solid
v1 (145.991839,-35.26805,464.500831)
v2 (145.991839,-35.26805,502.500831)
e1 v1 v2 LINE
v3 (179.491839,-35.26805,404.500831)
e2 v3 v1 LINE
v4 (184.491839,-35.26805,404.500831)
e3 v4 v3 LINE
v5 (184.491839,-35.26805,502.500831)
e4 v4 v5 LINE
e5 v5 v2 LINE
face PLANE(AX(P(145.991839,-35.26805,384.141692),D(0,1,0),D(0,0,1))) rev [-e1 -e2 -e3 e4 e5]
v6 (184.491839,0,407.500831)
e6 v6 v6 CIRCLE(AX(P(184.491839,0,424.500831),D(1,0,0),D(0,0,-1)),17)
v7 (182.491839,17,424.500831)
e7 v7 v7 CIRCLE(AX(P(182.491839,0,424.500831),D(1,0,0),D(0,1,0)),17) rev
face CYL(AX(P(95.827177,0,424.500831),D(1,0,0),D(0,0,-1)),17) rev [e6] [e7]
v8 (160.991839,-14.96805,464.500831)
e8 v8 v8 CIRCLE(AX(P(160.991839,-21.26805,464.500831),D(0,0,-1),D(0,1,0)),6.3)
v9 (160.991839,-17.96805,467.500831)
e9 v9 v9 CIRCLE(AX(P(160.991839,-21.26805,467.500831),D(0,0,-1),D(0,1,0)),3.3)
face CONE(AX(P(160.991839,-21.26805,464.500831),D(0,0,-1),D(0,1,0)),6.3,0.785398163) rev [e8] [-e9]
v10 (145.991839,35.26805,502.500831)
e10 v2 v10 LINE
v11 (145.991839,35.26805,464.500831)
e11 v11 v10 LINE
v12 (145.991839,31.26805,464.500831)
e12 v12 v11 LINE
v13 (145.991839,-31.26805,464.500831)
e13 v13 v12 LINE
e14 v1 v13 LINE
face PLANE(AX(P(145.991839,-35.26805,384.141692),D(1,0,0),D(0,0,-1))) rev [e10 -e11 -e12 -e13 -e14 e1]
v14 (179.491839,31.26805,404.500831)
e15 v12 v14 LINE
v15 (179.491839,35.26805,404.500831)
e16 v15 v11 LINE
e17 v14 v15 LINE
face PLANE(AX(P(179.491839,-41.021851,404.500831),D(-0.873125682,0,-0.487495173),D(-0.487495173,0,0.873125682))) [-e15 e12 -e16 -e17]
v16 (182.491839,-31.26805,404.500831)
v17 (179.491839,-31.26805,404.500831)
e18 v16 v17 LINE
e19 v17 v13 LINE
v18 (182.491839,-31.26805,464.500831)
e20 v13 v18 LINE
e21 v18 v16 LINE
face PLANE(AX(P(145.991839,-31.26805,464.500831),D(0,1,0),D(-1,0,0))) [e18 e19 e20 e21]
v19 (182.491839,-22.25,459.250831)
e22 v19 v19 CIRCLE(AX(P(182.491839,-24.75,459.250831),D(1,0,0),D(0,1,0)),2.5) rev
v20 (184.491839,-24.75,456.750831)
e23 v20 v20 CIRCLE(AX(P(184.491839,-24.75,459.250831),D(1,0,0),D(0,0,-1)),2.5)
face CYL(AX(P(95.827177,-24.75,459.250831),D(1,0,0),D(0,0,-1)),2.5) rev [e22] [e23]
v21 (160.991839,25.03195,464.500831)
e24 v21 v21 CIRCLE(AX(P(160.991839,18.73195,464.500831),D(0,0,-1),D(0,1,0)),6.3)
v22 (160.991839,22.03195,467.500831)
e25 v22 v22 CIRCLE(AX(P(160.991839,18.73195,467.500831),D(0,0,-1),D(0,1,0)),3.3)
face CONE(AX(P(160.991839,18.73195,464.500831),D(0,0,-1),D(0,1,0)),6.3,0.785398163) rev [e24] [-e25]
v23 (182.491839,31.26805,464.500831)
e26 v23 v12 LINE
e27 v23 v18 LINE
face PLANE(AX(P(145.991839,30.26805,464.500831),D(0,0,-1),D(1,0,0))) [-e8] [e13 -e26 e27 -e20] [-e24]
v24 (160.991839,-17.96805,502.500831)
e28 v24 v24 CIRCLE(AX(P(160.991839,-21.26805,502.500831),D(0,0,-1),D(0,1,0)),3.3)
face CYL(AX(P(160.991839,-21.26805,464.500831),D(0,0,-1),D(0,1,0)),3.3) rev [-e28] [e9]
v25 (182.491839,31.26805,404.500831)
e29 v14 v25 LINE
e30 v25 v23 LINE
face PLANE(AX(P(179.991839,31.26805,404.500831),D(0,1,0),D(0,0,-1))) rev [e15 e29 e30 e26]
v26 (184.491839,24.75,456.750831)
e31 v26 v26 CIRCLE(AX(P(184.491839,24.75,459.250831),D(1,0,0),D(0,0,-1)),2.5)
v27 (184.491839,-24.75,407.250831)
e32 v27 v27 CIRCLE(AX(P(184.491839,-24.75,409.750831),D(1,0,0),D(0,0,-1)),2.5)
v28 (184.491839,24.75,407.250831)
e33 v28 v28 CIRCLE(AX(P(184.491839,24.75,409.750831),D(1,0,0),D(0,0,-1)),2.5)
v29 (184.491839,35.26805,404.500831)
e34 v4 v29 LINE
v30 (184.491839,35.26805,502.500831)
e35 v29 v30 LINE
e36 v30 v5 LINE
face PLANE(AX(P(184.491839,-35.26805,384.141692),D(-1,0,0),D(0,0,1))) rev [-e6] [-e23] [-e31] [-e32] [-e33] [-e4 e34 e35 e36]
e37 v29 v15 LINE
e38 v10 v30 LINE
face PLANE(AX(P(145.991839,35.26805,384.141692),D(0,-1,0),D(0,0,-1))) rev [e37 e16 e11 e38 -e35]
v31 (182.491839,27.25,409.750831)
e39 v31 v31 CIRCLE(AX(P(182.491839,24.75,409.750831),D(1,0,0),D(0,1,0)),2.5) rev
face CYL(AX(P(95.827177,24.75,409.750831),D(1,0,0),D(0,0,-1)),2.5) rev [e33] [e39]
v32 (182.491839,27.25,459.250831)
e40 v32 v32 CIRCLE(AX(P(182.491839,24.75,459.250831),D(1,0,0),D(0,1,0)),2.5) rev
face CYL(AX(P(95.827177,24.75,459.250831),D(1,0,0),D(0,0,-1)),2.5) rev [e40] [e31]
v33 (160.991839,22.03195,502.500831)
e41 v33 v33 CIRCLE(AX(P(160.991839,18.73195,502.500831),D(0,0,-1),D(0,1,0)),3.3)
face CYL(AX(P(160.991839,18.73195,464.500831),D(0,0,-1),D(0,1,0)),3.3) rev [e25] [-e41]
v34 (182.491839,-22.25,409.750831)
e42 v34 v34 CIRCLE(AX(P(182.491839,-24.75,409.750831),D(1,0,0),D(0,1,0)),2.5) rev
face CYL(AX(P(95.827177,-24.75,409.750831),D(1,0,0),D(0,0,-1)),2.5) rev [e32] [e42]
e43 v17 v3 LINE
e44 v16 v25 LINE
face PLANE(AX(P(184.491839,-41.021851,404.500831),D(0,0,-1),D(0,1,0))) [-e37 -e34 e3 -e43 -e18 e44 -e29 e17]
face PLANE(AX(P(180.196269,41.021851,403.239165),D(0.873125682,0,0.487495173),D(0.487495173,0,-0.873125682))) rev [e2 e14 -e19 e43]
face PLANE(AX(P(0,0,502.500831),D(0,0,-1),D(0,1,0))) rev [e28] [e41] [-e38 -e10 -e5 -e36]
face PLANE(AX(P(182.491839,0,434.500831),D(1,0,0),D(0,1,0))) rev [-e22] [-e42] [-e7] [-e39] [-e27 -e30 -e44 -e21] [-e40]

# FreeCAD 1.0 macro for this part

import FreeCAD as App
import Part
import Sketcher
from FreeCAD import Vector
Q = App.Units.Quantity

doc = App.newDocument("Part")
body = doc.addObject("PartDesign::Body", "Body")

# Sketch on XY plane
sketch1 = body.newObject("Sketcher::SketchObject", "Sketch")
sketch1.AttachmentSupport = (doc.getObject("XY_Plane"), [""])
sketch1.MapMode = "FlatFace"
sketch1.AttachmentOffset = App.Placement(Vector(0, 0, 502.500831), App.Rotation())
sketch1.addGeometry(Part.LineSegment(Vector(145.991839, -35.26805, 0), Vector(145.991839, 35.26805, 0)), False)
sketch1.addGeometry(Part.LineSegment(Vector(145.991839, 35.26805, 0), Vector(184.491839, 35.26805, 0)), False)
sketch1.addGeometry(Part.LineSegment(Vector(184.491839, 35.26805, 0), Vector(184.491839, -35.26805, 0)), False)
sketch1.addGeometry(Part.LineSegment(Vector(184.491839, -35.26805, 0), Vector(145.991839, -35.26805, 0)), False)
sketch1.addConstraint(Sketcher.Constraint("Coincident", 0, 2, 1, 1))
sketch1.addConstraint(Sketcher.Constraint("Coincident", 1, 2, 2, 1))
sketch1.addConstraint(Sketcher.Constraint("Coincident", 2, 2, 3, 1))
sketch1.addConstraint(Sketcher.Constraint("Coincident", 3, 2, 0, 1))
sketch1.addConstraint(Sketcher.Constraint("Vertical", 0))
sketch1.addConstraint(Sketcher.Constraint("Horizontal", 1))
sketch1.addConstraint(Sketcher.Constraint("Vertical", 2))
sketch1.addConstraint(Sketcher.Constraint("Horizontal", 3))
sketch1.addConstraint(Sketcher.Constraint("DistanceX", 1, 1, 1, 2, Q("38.5 mm")))
sketch1.addConstraint(Sketcher.Constraint("DistanceY", 0, 1, 0, 2, Q("70.536099 mm")))
sketch1.addConstraint(Sketcher.Constraint("DistanceX", -1, 1, 0, 2, Q("145.991839 mm")))
sketch1.addConstraint(Sketcher.Constraint("DistanceY", -1, 1, 0, 2, Q("35.26805 mm")))
pad1 = body.newObject("PartDesign::Pad", "Pad")
pad1.Profile = sketch1
pad1.Length = 38
pad1.Reversed = True

# Sketch on XZ plane
sketch2 = body.newObject("Sketcher::SketchObject", "Sketch001")
sketch2.AttachmentSupport = (doc.getObject("XZ_Plane"), [""])
sketch2.MapMode = "FlatFace"
sketch2.AttachmentOffset = App.Placement(Vector(0, 0, -35.26805), App.Rotation())
sketch2.addGeometry(Part.LineSegment(Vector(184.491839, 404.500831, 0), Vector(179.491839, 404.500831, 0)), False)
sketch2.addGeometry(Part.LineSegment(Vector(179.491839, 404.500831, 0), Vector(145.991839, 464.500831, 0)), False)
sketch2.addGeometry(Part.LineSegment(Vector(145.991839, 464.500831, 0), Vector(184.491839, 464.500831, 0)), False)
sketch2.addGeometry(Part.LineSegment(Vector(184.491839, 464.500831, 0), Vector(184.491839, 404.500831, 0)), False)
sketch2.addConstraint(Sketcher.Constraint("Coincident", 0, 2, 1, 1))
sketch2.addConstraint(Sketcher.Constraint("Coincident", 1, 2, 2, 1))
sketch2.addConstraint(Sketcher.Constraint("Coincident", 2, 2, 3, 1))
sketch2.addConstraint(Sketcher.Constraint("Coincident", 3, 2, 0, 1))
sketch2.addConstraint(Sketcher.Constraint("Horizontal", 0))
sketch2.addConstraint(Sketcher.Constraint("Horizontal", 2))
sketch2.addConstraint(Sketcher.Constraint("Vertical", 3))
sketch2.addConstraint(Sketcher.Constraint("DistanceX", 0, 2, 0, 1, Q("5 mm")))
sketch2.addConstraint(Sketcher.Constraint("DistanceY", 3, 2, 3, 1, Q("60 mm")))
sketch2.addConstraint(Sketcher.Constraint("DistanceX", 2, 1, 2, 2, Q("38.5 mm")))
sketch2.addConstraint(Sketcher.Constraint("DistanceX", -1, 1, 0, 2, Q("179.491839 mm")))
sketch2.addConstraint(Sketcher.Constraint("DistanceY", -1, 1, 0, 2, Q("404.500831 mm")))
pad2 = body.newObject("PartDesign::Pad", "Pad001")
pad2.Profile = sketch2
pad2.Length = 4

# Sketch on XZ plane
sketch3 = body.newObject("Sketcher::SketchObject", "Sketch002")
sketch3.AttachmentSupport = (doc.getObject("XZ_Plane"), [""])
sketch3.MapMode = "FlatFace"
sketch3.AttachmentOffset = App.Placement(Vector(0, 0, 35.268049), App.Rotation())
sketch3.addGeometry(Part.LineSegment(Vector(184.491839, 404.500831, 0), Vector(179.491839, 404.500831, 0)), False)
sketch3.addGeometry(Part.LineSegment(Vector(179.491839, 404.500831, 0), Vector(145.991839, 464.500831, 0)), False)
sketch3.addGeometry(Part.LineSegment(Vector(145.991839, 464.500831, 0), Vector(184.491839, 464.500831, 0)), False)
sketch3.addGeometry(Part.LineSegment(Vector(184.491839, 464.500831, 0), Vector(184.491839, 404.500831, 0)), False)
sketch3.addConstraint(Sketcher.Constraint("Coincident", 0, 2, 1, 1))
sketch3.addConstraint(Sketcher.Constraint("Coincident", 1, 2, 2, 1))
sketch3.addConstraint(Sketcher.Constraint("Coincident", 2, 2, 3, 1))
sketch3.addConstraint(Sketcher.Constraint("Coincident", 3, 2, 0, 1))
sketch3.addConstraint(Sketcher.Constraint("Horizontal", 0))
sketch3.addConstraint(Sketcher.Constraint("Horizontal", 2))
sketch3.addConstraint(Sketcher.Constraint("Vertical", 3))
sketch3.addConstraint(Sketcher.Constraint("DistanceX", 0, 2, 0, 1, Q("5 mm")))
sketch3.addConstraint(Sketcher.Constraint("DistanceY", 3, 2, 3, 1, Q("60 mm")))
sketch3.addConstraint(Sketcher.Constraint("DistanceX", 2, 1, 2, 2, Q("38.5 mm")))
sketch3.addConstraint(Sketcher.Constraint("DistanceX", -1, 1, 0, 2, Q("179.491839 mm")))
sketch3.addConstraint(Sketcher.Constraint("DistanceY", -1, 1, 0, 2, Q("404.500831 mm")))
pad3 = body.newObject("PartDesign::Pad", "Pad002")
pad3.Profile = sketch3
pad3.Length = 4
pad3.Reversed = True

# Sketch on YZ plane
sketch4 = body.newObject("Sketcher::SketchObject", "Sketch003")
sketch4.AttachmentSupport = (doc.getObject("YZ_Plane"), [""])
sketch4.MapMode = "FlatFace"
sketch4.AttachmentOffset = App.Placement(Vector(0, 0, 184.491839), App.Rotation())
sketch4.addGeometry(Part.LineSegment(Vector(-31.26805, 464.500831, 0), Vector(-31.26805, 404.500831, 0)), False)
sketch4.addGeometry(Part.LineSegment(Vector(-31.26805, 404.500831, 0), Vector(31.26805, 404.500831, 0)), False)
sketch4.addGeometry(Part.LineSegment(Vector(31.26805, 404.500831, 0), Vector(31.26805, 464.500831, 0)), False)
sketch4.addGeometry(Part.LineSegment(Vector(31.26805, 464.500831, 0), Vector(-31.26805, 464.500831, 0)), False)
sketch4.addGeometry(Part.Circle(Vector(-24.75, 409.750831, 0), Vector(0, 0, 1), 2.5), False)
sketch4.addGeometry(Part.Circle(Vector(24.75, 409.750831, 0), Vector(0, 0, 1), 2.5), False)
sketch4.addGeometry(Part.Circle(Vector(0, 424.500831, 0), Vector(0, 0, 1), 17), False)
sketch4.addGeometry(Part.Circle(Vector(-24.75, 459.250831, 0), Vector(0, 0, 1), 2.5), False)
sketch4.addGeometry(Part.Circle(Vector(24.75, 459.250831, 0), Vector(0, 0, 1), 2.5), False)
sketch4.addConstraint(Sketcher.Constraint("Coincident", 0, 2, 1, 1))
sketch4.addConstraint(Sketcher.Constraint("Coincident", 1, 2, 2, 1))
sketch4.addConstraint(Sketcher.Constraint("Coincident", 2, 2, 3, 1))
sketch4.addConstraint(Sketcher.Constraint("Coincident", 3, 2, 0, 1))
sketch4.addConstraint(Sketcher.Constraint("Vertical", 0))
sketch4.addConstraint(Sketcher.Constraint("Horizontal", 1))
sketch4.addConstraint(Sketcher.Constraint("Vertical", 2))
sketch4.addConstraint(Sketcher.Constraint("Horizontal", 3))
sketch4.addConstraint(Sketcher.Constraint("Equal", 4, 5))
sketch4.addConstraint(Sketcher.Constraint("Equal", 5, 7))
sketch4.addConstraint(Sketcher.Constraint("Equal", 7, 8))
sketch4.addConstraint(Sketcher.Constraint("Symmetric", 4, 3, 5, 3, -2))
sketch4.addConstraint(Sketcher.Constraint("Symmetric", 7, 3, 8, 3, -2))
sketch4.addConstraint(Sketcher.Constraint("PointOnObject", 6, 3, -2))
sketch4.addConstraint(Sketcher.Constraint("Vertical", 4, 3, 7, 3))
sketch4.addConstraint(Sketcher.Constraint("Diameter", 4, Q("5 mm")))
sketch4.addConstraint(Sketcher.Constraint("Diameter", 6, Q("34 mm")))
sketch4.addConstraint(Sketcher.Constraint("DistanceY", 0, 2, 0, 1, Q("60 mm")))
sketch4.addConstraint(Sketcher.Constraint("DistanceY", 0, 2, 6, 3, Q("20 mm")))
sketch4.addConstraint(Sketcher.Constraint("DistanceX", 4, 3, 5, 3, Q("49.5 mm")))
sketch4.addConstraint(Sketcher.Constraint("DistanceY", 4, 3, 7, 3, Q("49.5 mm")))
sketch4.addConstraint(Sketcher.Constraint("DistanceY", 4, 3, 6, 3, Q("14.75 mm")))
sketch4.addConstraint(Sketcher.Constraint("DistanceX", 1, 1, 1, 2, Q("62.536099 mm")))
sketch4.addConstraint(Sketcher.Constraint("DistanceY", -1, 1, 4, 3, Q("409.750831 mm")))
sketch4.addConstraint(Sketcher.Constraint("DistanceX", 0, 2, -1, 1, Q("31.26805 mm")))
pad4 = body.newObject("PartDesign::Pad", "Pad003")
pad4.Profile = sketch4
pad4.Length = 2
pad4.Reversed = True

# Sketch on XY plane
sketch5 = body.newObject("Sketcher::SketchObject", "Sketch004")
sketch5.AttachmentSupport = (doc.getObject("XY_Plane"), [""])
sketch5.MapMode = "FlatFace"
sketch5.AttachmentOffset = App.Placement(Vector(0, 0, 464.500831), App.Rotation())
sketch5.addGeometry(Part.Circle(Vector(160.991839, 18.73195, 0), Vector(0, 0, 1), 3.3), False)
sketch5.addGeometry(Part.Circle(Vector(160.991839, -21.26805, 0), Vector(0, 0, 1), 3.3), False)
sketch5.addConstraint(Sketcher.Constraint("Equal", 0, 1))
sketch5.addConstraint(Sketcher.Constraint("Vertical", 0, 3, 1, 3))
sketch5.addConstraint(Sketcher.Constraint("Diameter", 0, Q("6.6 mm")))
sketch5.addConstraint(Sketcher.Constraint("DistanceY", 1, 3, 0, 3, Q("40 mm")))
sketch5.addConstraint(Sketcher.Constraint("DistanceX", -1, 1, 0, 3, Q("160.991839 mm")))
sketch5.addConstraint(Sketcher.Constraint("DistanceY", -1, 1, 0, 3, Q("18.73195 mm")))
doc.recompute()
hole = body.newObject("PartDesign::Hole", "Hole")
hole.Profile = sketch5
hole.ThreadType = "None"
hole.Diameter = 6.6
hole.DepthType = "ThroughAll"
hole.HoleCutType = "Countersink"
hole.HoleCutDiameter = 12.6
hole.HoleCutCountersinkAngle = 90
hole.Reversed = True

doc.recompute()
